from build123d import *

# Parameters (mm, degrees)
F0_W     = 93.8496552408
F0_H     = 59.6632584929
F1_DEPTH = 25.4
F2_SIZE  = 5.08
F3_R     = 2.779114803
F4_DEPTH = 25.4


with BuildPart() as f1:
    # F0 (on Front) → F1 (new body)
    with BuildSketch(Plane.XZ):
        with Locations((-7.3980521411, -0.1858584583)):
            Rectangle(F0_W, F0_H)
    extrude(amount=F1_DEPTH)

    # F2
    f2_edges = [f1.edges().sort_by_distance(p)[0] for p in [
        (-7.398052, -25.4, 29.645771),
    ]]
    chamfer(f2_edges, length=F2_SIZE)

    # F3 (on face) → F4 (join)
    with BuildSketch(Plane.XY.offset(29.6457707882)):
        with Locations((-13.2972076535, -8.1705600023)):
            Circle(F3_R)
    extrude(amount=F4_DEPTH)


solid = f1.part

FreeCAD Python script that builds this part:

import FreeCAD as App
import Part
import Sketcher

V = App.Vector


def edges_at(feature, points):
    """Names of the edges that pass closest to the given points."""
    edges = feature.Shape.Edges
    near = lambda p: min(range(len(edges)), key=lambda i: edges[i].distToShape(Part.Vertex(*p))[0])
    return sorted({f"Edge{near(p) + 1}" for p in points})


def add_polygon(sketch, points):
    """Adds a closed chain of lines whose ends are joined by coincident constraints."""
    first, n = sketch.GeometryCount, len(points)
    for a, b in zip(points, points[1:] + points[:1]):
        sketch.addGeometry(Part.LineSegment(App.Vector(*a, 0), App.Vector(*b, 0)), False)
    for i in range(n):
        sketch.addConstraint(Sketcher.Constraint("Coincident", first + i, 2, first + (i + 1) % n, 1))

doc = App.newDocument("Part")
params = doc.addObject("Spreadsheet::Sheet", "Params")
for row, (alias, value) in enumerate([
    ("pad1_length", "1 in"),
    ("chamfer_size", "0.2 in"),
    ("pad2_length", "1 in"),
], start=1):
    params.set(f"A{row}", alias)
    params.set(f"B{row}", "=" + value)
    params.setAlias(f"B{row}", alias)

body = doc.addObject("PartDesign::Body", "Body")

# Sketch on XZ plane
sketch1 = doc.addObject("Sketcher::SketchObject", "Sketch")
body.addObject(sketch1)
sketch1.AttachmentSupport = (doc.XZ_Plane, [""])
sketch1.MapMode = "FlatFace"
add_polygon(sketch1, [(-54, 30), (-54, -30), (40, -30), (40, 30)])  # lines 0-3
sketch1.addConstraint(Sketcher.Constraint("Vertical", 0))
sketch1.addConstraint(Sketcher.Constraint("Horizontal", 1))
sketch1.addConstraint(Sketcher.Constraint("Vertical", 2))
sketch1.addConstraint(Sketcher.Constraint("Horizontal", 3))
sketch1.addConstraint(Sketcher.Constraint("DistanceY", 0, 2, 0, 1, 59.663258))
sketch1.addConstraint(Sketcher.Constraint("DistanceX", 1, 1, 1, 2, 93.849655))
sketch1.addConstraint(Sketcher.Constraint("DistanceX", 0, 2, -1, 1, 54.32288))
sketch1.addConstraint(Sketcher.Constraint("DistanceY", -1, 1, 2, 2, 29.645771))
pad1 = doc.addObject("PartDesign::Pad", "Pad")
body.addObject(pad1)
pad1.Profile = sketch1
pad1.setExpression("Length", "Params.pad1_length")
doc.recompute()

chamfer = doc.addObject("PartDesign::Chamfer", "Chamfer")
body.addObject(chamfer)
chamfer.Base = (pad1, edges_at(pad1, [(-7.398, -25.4, 29.646)]))
chamfer.setExpression("Size", "Params.chamfer_size")

# Sketch on XY plane
sketch2 = doc.addObject("Sketcher::SketchObject", "Sketch001")
body.addObject(sketch2)
sketch2.AttachmentSupport = (doc.XY_Plane, [""])
sketch2.MapMode = "FlatFace"
sketch2.AttachmentOffset = App.Placement(V(0, 0, 29.645771), App.Rotation())
sketch2.addGeometry(Part.Circle(V(-13.3, -8.2, 0), V(0, 0, 1), 2.8), False)
sketch2.addConstraint(Sketcher.Constraint("Diameter", 0, 5.55823))
sketch2.addConstraint(Sketcher.Constraint("DistanceY", 0, 3, -1, 1, 8.17056))
sketch2.addConstraint(Sketcher.Constraint("DistanceX", 0, 3, -1, 1, 13.297208))
pad2 = doc.addObject("PartDesign::Pad", "Pad001")
body.addObject(pad2)
pad2.Profile = sketch2
pad2.setExpression("Length", "Params.pad2_length")

doc.recompute()
